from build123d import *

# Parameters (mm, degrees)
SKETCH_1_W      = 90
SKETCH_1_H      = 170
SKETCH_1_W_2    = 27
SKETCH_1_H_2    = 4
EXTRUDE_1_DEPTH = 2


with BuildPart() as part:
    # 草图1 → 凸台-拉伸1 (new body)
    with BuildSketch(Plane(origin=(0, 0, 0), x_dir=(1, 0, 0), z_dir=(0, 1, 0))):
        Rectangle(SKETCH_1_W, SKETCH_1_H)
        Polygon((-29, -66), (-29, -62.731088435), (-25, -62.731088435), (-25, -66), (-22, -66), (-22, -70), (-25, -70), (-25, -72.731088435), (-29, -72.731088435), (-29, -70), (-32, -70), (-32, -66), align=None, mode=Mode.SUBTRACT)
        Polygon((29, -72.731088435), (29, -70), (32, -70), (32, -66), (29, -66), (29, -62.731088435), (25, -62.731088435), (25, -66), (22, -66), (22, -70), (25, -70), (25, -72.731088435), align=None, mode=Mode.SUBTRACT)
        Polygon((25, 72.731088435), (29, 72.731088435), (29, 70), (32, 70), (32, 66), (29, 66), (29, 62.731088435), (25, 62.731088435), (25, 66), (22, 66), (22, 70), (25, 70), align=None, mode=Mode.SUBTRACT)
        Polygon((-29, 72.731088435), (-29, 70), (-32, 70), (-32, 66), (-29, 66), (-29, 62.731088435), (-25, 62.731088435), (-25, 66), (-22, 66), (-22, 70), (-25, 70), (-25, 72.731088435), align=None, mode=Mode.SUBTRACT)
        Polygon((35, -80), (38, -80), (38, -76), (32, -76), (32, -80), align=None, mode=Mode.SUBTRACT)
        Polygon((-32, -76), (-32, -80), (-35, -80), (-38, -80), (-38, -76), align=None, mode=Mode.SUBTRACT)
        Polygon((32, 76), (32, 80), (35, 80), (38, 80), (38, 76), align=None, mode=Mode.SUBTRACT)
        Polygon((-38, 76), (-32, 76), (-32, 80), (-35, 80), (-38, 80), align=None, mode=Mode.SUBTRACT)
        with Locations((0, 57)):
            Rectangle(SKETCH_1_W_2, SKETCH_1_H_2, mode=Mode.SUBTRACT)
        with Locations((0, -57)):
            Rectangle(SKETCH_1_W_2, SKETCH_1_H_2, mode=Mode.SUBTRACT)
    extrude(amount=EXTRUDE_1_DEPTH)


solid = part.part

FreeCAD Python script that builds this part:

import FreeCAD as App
import Part
import Sketcher


def add_polygon(sketch, points):
    """Adds a closed chain of lines whose ends are joined by coincident constraints."""
    first, n = sketch.GeometryCount, len(points)
    for a, b in zip(points, points[1:] + points[:1]):
        sketch.addGeometry(Part.LineSegment(App.Vector(*a, 0), App.Vector(*b, 0)), False)
    for i in range(n):
        sketch.addConstraint(Sketcher.Constraint("Coincident", first + i, 2, first + (i + 1) % n, 1))

doc = App.newDocument("Part")
body = doc.addObject("PartDesign::Body", "Body")

sketch1 = doc.addObject("Sketcher::SketchObject", "Sketch")
body.addObject(sketch1)
sketch1.AttachmentSupport = (doc.XZ_Plane, [""])
sketch1.MapMode = "FlatFace"
add_polygon(sketch1, [(-45, -85), (-45, 85), (45, 85), (45, -85)])
add_polygon(sketch1, [(-38, 76), (-32, 76), (-32, 80), (-38, 80)])
add_polygon(sketch1, [(-32, 66), (-29, 66), (-29, 62.7), (-25, 62.7), (-25, 66), (-22, 66), (-22, 70), (-25, 70), (-25, 72.7), (-29, 72.7), (-29, 70), (-32, 70)])
add_polygon(sketch1, [(13.5, 59), (-13.5, 59), (-13.5, 55), (13.5, 55)])
add_polygon(sketch1, [(29, 70), (29, 72.7), (25, 72.7), (25, 70), (22, 70), (22, 66), (25, 66), (25, 62.7), (29, 62.7), (29, 66), (32, 66), (32, 70)])
add_polygon(sketch1, [(38, 80), (32, 80), (32, 76), (38, 76)])
add_polygon(sketch1, [(-32, -76), (-38, -76), (-38, -80), (-32, -80)])
add_polygon(sketch1, [(-29, -70), (-29, -72.7), (-25, -72.7), (-25, -70), (-22, -70), (-22, -66), (-25, -66), (-25, -62.7), (-29, -62.7), (-29, -66), (-32, -66), (-32, -70)])
add_polygon(sketch1, [(13.5, -55), (-13.5, -55), (-13.5, -59), (13.5, -59)])
add_polygon(sketch1, [(25, -70), (25, -72.7), (29, -72.7), (29, -70), (32, -70), (32, -66), (29, -66), (29, -62.7), (25, -62.7), (25, -66), (22, -66), (22, -70)])
add_polygon(sketch1, [(38, -76), (32, -76), (32, -80), (38, -80)])
sketch1.addConstraint([
    Sketcher.Constraint("Vertical", 0),
    Sketcher.Constraint("Horizontal", 1),
    Sketcher.Constraint("Vertical", 2),
    Sketcher.Constraint("Horizontal", 3),
    Sketcher.Constraint("Horizontal", 4),
    Sketcher.Constraint("Vertical", 5),
    Sketcher.Constraint("Horizontal", 6),
    Sketcher.Constraint("Vertical", 7),
    Sketcher.Constraint("Horizontal", 8),
    Sketcher.Constraint("Vertical", 9),
    Sketcher.Constraint("Horizontal", 10),
    Sketcher.Constraint("Vertical", 11),
    Sketcher.Constraint("Horizontal", 12),
    Sketcher.Constraint("Vertical", 13),
    Sketcher.Constraint("Horizontal", 14),
    Sketcher.Constraint("Vertical", 15),
    Sketcher.Constraint("Horizontal", 16),
    Sketcher.Constraint("Vertical", 17),
    Sketcher.Constraint("Horizontal", 18),
    Sketcher.Constraint("Vertical", 19),
    Sketcher.Constraint("Horizontal", 20),
    Sketcher.Constraint("Vertical", 21),
    Sketcher.Constraint("Horizontal", 22),
    Sketcher.Constraint("Vertical", 23),
    Sketcher.Constraint("Vertical", 24),
    Sketcher.Constraint("Horizontal", 25),
    Sketcher.Constraint("Vertical", 26),
    Sketcher.Constraint("Horizontal", 27),
    Sketcher.Constraint("Vertical", 28),
    Sketcher.Constraint("Horizontal", 29),
    Sketcher.Constraint("Vertical", 30),
    Sketcher.Constraint("Horizontal", 31),
    Sketcher.Constraint("Vertical", 32),
    Sketcher.Constraint("Horizontal", 33),
    Sketcher.Constraint("Vertical", 34),
    Sketcher.Constraint("Horizontal", 35),
    Sketcher.Constraint("Horizontal", 36),
    Sketcher.Constraint("Vertical", 37),
    Sketcher.Constraint("Horizontal", 38),
    Sketcher.Constraint("Vertical", 39),
    Sketcher.Constraint("Horizontal", 40),
    Sketcher.Constraint("Vertical", 41),
    Sketcher.Constraint("Horizontal", 42),
    Sketcher.Constraint("Vertical", 43),
    Sketcher.Constraint("Vertical", 44),
    Sketcher.Constraint("Horizontal", 45),
    Sketcher.Constraint("Vertical", 46),
    Sketcher.Constraint("Horizontal", 47),
    Sketcher.Constraint("Vertical", 48),
    Sketcher.Constraint("Horizontal", 49),
    Sketcher.Constraint("Vertical", 50),
    Sketcher.Constraint("Horizontal", 51),
    Sketcher.Constraint("Vertical", 52),
    Sketcher.Constraint("Horizontal", 53),
    Sketcher.Constraint("Vertical", 54),
    Sketcher.Constraint("Horizontal", 55),
    Sketcher.Constraint("Horizontal", 56),
    Sketcher.Constraint("Vertical", 57),
    Sketcher.Constraint("Horizontal", 58),
    Sketcher.Constraint("Vertical", 59),
    Sketcher.Constraint("Vertical", 60),
    Sketcher.Constraint("Horizontal", 61),
    Sketcher.Constraint("Vertical", 62),
    Sketcher.Constraint("Horizontal", 63),
    Sketcher.Constraint("Vertical", 64),
    Sketcher.Constraint("Horizontal", 65),
    Sketcher.Constraint("Vertical", 66),
    Sketcher.Constraint("Horizontal", 67),
    Sketcher.Constraint("Vertical", 68),
    Sketcher.Constraint("Horizontal", 69),
    Sketcher.Constraint("Vertical", 70),
    Sketcher.Constraint("Horizontal", 71),
    Sketcher.Constraint("Horizontal", 72),
    Sketcher.Constraint("Vertical", 73),
    Sketcher.Constraint("Horizontal", 74),
    Sketcher.Constraint("Vertical", 75),
    Sketcher.Constraint("Symmetric", 0, 2, 2, 2, -1, 1),
    Sketcher.Constraint("Symmetric", 38, 2, 40, 2, -1, 1),
    Sketcher.Constraint("Symmetric", 36, 2, 42, 2, -1, 1),
    Sketcher.Constraint("Symmetric", 24, 2, 44, 2, -1, 1),
    Sketcher.Constraint("Symmetric", 26, 2, 46, 2, -1, 1),
    Sketcher.Constraint("Symmetric", 28, 2, 48, 2, -1, 1),
    Sketcher.Constraint("Symmetric", 30, 2, 50, 2, -1, 1),
    Sketcher.Constraint("Symmetric", 32, 2, 52, 2, -1, 1),
    Sketcher.Constraint("Symmetric", 34, 2, 54, 2, -1, 1),
    Sketcher.Constraint("Symmetric", 22, 2, 56, 2, -1, 1),
    Sketcher.Constraint("Symmetric", 20, 2, 58, 2, -1, 1),
    Sketcher.Constraint("Symmetric", 15, 2, 60, 2, -1, 1),
    Sketcher.Constraint("Symmetric", 17, 2, 62, 2, -1, 1),
    Sketcher.Constraint("Symmetric", 19, 2, 64, 2, -1, 1),
    Sketcher.Constraint("Symmetric", 9, 2, 66, 2, -1, 1),
    Sketcher.Constraint("Symmetric", 11, 2, 68, 2, -1, 1),
    Sketcher.Constraint("Symmetric", 13, 2, 70, 2, -1, 1),
    Sketcher.Constraint("Symmetric", 4, 2, 72, 2, -1, 1),
    Sketcher.Constraint("Symmetric", 6, 2, 74, 2, -1, 1),
    Sketcher.Constraint("Symmetric", 16, 2, 24, 2, -2),
    Sketcher.Constraint("Symmetric", 14, 2, 26, 2, -2),
    Sketcher.Constraint("Symmetric", 12, 2, 28, 2, -2),
    Sketcher.Constraint("Symmetric", 10, 2, 30, 2, -2),
    Sketcher.Constraint("Symmetric", 8, 2, 32, 2, -2),
    Sketcher.Constraint("Symmetric", 18, 2, 34, 2, -2),
    Sketcher.Constraint("Symmetric", 5, 2, 36, 2, -2),
    Sketcher.Constraint("Symmetric", 7, 2, 38, 2, -2),
    Sketcher.Constraint("Horizontal", 8, 2, 11, 2),
    Sketcher.Constraint("Horizontal", 14, 2, 17, 2),
    Sketcher.Constraint("Vertical", 11, 2, 14, 2),
    Sketcher.Constraint("Vertical", 9, 2, 16, 2),
    Sketcher.Constraint("Vertical", 5, 2, 18, 2),
    Sketcher.Constraint("Vertical", 21, 2, 56, 2),
    Sketcher.Constraint("Equal", 8, 12),
    Sketcher.Constraint("Equal", 67, 5),
    Sketcher.Constraint("Equal", 7, 13),
    Sketcher.Constraint("Equal", 19, 21),
    Sketcher.Constraint("DistanceX", 1, 1, 1, 2, 90.0),
    Sketcher.Constraint("DistanceX", 4, 1, 4, 2, 6.0),
    Sketcher.Constraint("DistanceX", 8, 1, 8, 2, 3.0),
    Sketcher.Constraint("DistanceX", 10, 1, 10, 2, 4.0),
    Sketcher.Constraint("DistanceX", 20, 2, 20, 1, 27.0),
    Sketcher.Constraint("DistanceY", 0, 1, 0, 2, 170.0),
    Sketcher.Constraint("DistanceX", 4, 2, -1, 1, 32.0),
    Sketcher.Constraint("DistanceY", -1, 1, 4, 2, 76.0),
    Sketcher.Constraint("DistanceY", -1, 1, 8, 2, 66.0),
    Sketcher.Constraint("DistanceY", -1, 1, 20, 2, 59.0),
    Sketcher.Constraint("DistanceY", 9, 2, 9, 1, 3.268912),
    Sketcher.Constraint("DistanceY", 15, 1, 15, 2, 2.731088),
])
pad1 = doc.addObject("PartDesign::Pad", "Pad")
body.addObject(pad1)
pad1.Profile = sketch1
pad1.Length = 2
pad1.Reversed = True

doc.recompute()
